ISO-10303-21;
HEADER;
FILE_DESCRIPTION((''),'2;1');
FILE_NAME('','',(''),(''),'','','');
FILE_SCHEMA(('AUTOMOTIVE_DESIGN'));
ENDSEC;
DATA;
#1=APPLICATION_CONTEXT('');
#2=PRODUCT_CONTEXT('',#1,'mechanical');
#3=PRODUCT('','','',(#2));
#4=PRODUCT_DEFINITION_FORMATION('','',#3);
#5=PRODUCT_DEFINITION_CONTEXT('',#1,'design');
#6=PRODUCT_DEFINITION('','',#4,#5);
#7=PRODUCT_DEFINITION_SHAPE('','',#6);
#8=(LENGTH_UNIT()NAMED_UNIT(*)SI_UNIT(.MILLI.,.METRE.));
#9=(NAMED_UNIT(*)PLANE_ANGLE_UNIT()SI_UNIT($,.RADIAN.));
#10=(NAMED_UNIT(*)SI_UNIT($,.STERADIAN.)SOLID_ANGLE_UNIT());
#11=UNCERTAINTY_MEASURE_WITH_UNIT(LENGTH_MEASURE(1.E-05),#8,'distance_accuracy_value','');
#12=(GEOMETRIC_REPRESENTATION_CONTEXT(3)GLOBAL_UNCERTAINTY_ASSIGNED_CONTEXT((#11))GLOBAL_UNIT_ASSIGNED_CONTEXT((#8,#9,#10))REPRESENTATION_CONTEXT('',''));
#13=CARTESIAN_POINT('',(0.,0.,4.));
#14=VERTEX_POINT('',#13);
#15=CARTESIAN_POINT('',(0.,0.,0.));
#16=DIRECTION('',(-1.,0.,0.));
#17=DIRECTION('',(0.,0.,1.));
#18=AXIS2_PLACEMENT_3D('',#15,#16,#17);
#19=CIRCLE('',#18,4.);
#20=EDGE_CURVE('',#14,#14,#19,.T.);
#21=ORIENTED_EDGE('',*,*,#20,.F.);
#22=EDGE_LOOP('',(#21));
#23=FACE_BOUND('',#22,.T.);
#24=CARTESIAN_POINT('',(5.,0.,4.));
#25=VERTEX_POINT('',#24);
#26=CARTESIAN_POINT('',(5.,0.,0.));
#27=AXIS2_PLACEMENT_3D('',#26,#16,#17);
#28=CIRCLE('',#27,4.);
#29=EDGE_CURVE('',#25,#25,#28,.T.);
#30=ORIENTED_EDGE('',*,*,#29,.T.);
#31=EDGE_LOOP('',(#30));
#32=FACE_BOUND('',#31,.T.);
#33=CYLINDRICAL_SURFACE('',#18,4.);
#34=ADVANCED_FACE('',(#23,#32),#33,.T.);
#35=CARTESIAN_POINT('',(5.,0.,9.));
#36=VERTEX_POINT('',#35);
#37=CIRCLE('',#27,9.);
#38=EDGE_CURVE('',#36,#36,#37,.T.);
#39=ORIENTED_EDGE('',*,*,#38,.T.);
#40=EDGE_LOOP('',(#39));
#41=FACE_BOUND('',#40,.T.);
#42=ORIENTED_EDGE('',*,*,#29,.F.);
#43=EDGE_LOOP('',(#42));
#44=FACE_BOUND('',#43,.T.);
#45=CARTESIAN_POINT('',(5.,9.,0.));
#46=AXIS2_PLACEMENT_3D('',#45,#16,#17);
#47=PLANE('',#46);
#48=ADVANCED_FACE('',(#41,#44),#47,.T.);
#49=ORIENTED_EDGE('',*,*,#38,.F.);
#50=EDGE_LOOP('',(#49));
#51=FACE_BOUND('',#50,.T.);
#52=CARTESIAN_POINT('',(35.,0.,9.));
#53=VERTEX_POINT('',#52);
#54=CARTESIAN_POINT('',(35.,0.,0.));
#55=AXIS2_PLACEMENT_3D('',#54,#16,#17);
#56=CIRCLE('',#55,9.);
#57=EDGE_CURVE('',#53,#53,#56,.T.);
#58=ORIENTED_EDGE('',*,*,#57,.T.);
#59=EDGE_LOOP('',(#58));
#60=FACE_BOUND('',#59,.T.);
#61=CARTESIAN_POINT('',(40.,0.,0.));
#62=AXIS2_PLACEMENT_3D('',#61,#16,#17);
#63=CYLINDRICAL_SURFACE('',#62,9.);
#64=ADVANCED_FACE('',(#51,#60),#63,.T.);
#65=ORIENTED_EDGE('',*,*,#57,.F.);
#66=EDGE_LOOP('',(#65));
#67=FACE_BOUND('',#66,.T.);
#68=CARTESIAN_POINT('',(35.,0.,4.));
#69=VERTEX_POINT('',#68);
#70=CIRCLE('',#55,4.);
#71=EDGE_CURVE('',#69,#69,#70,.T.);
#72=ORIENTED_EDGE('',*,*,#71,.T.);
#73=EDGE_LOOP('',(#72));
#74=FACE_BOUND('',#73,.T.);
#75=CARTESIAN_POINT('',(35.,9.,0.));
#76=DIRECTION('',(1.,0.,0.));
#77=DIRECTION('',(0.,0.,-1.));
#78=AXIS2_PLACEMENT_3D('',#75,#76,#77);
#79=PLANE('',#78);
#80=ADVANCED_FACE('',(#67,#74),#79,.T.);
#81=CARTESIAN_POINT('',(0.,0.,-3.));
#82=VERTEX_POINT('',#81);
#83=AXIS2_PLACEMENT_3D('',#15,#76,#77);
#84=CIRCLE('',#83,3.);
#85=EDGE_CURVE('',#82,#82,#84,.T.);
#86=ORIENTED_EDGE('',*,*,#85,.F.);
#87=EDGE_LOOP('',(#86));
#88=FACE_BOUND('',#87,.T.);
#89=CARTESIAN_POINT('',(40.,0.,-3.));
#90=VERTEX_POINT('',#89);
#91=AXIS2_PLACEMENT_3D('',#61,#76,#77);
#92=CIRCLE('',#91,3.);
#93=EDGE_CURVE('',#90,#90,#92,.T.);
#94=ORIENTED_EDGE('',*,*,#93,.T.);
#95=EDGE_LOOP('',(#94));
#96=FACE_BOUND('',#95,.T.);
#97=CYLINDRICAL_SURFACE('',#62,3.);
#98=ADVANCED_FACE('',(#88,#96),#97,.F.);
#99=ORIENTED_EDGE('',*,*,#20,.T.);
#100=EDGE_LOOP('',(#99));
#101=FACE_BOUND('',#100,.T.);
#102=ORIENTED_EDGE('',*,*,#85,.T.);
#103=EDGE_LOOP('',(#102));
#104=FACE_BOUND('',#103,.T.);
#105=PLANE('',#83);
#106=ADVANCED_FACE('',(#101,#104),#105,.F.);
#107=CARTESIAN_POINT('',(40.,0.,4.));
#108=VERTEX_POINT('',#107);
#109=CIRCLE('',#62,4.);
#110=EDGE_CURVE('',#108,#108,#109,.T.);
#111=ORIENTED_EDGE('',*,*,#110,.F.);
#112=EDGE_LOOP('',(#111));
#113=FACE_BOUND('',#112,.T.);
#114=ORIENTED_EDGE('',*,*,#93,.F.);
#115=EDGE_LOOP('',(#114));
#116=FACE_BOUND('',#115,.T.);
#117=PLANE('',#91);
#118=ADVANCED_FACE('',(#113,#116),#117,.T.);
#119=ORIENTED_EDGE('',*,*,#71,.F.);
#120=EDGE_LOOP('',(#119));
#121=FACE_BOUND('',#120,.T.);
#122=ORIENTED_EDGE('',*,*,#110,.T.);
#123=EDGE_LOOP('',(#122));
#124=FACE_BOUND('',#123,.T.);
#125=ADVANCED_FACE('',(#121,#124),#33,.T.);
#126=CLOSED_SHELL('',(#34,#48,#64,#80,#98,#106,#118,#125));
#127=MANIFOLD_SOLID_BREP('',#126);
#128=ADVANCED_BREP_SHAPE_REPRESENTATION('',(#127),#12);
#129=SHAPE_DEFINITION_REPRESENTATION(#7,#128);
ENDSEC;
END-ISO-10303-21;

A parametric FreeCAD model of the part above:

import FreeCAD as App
import Part
import Sketcher
Q = App.Units.Quantity

doc = App.newDocument("Part")
params = doc.addObject("Spreadsheet::Sheet", "Params")
for row, (alias, value) in enumerate([
    ("sketch1_diameter", "18 mm"),
    ("sketch1_diameter2", "6 mm"),
    ("pad1_length", "40 mm"),
    ("sketch2_width", "5 mm"),
    ("groove_angle", "360 deg"),
], start=1):
    params.set(f"A{row}", alias)
    params.set(f"B{row}", "=" + value)
    params.setAlias(f"B{row}", alias)

body = doc.addObject("PartDesign::Body", "Body")

# Sketch on YZ plane
sketch1 = doc.addObject("Sketcher::SketchObject", "Sketch")
body.addObject(sketch1)
sketch1.AttachmentSupport = (doc.YZ_Plane, [""])
sketch1.MapMode = "FlatFace"
sketch1.addGeometry([
    Part.Circle(App.Vector(0, 0, 0), App.Vector(0, 0, 1), 9),
    Part.Circle(App.Vector(0, 0, 0), App.Vector(0, 0, 1), 3),
], False)
sketch1.addConstraint([
    Sketcher.Constraint("Coincident", 0, 3, -1, 1),
    Sketcher.Constraint("Coincident", 1, 3, -1, 1),
    Sketcher.Constraint("Diameter", 0, Q("18 mm")),
    Sketcher.Constraint("Diameter", 1, Q("6 mm")),
])
sketch1.setExpression("Constraints[2]", "Params.sketch1_diameter")
sketch1.setExpression("Constraints[3]", "Params.sketch1_diameter2")
pad1 = doc.addObject("PartDesign::Pad", "Pad")
body.addObject(pad1)
pad1.Profile = sketch1
pad1.setExpression("Length", "Params.pad1_length")

# Sketch on XY plane
sketch2 = doc.addObject("Sketcher::SketchObject", "Sketch001")
body.addObject(sketch2)
sketch2.AttachmentSupport = (doc.XY_Plane, [""])
sketch2.MapMode = "FlatFace"
sketch2.addGeometry([
    Part.LineSegment(App.Vector(0, 9, 0), App.Vector(0, 4, 0)),  # 0
    Part.LineSegment(App.Vector(0, 4, 0), App.Vector(5, 4, 0)),  # 1
    Part.LineSegment(App.Vector(5, 4, 0), App.Vector(5, 9, 0)),  # 2
    Part.LineSegment(App.Vector(5, 9, 0), App.Vector(0, 9, 0)),  # 3
    Part.LineSegment(App.Vector(35, 9, 0), App.Vector(35, 4, 0)),  # 4
    Part.LineSegment(App.Vector(35, 4, 0), App.Vector(40, 4, 0)),  # 5
    Part.LineSegment(App.Vector(40, 4, 0), App.Vector(40, 9, 0)),  # 6
    Part.LineSegment(App.Vector(40, 9, 0), App.Vector(35, 9, 0)),  # 7
], False)
sketch2.addConstraint([
    Sketcher.Constraint("Coincident", 0, 2, 1, 1),
    Sketcher.Constraint("Coincident", 1, 2, 2, 1),
    Sketcher.Constraint("Coincident", 2, 2, 3, 1),
    Sketcher.Constraint("Coincident", 3, 2, 0, 1),
    Sketcher.Constraint("Coincident", 4, 2, 5, 1),
    Sketcher.Constraint("Coincident", 5, 2, 6, 1),
    Sketcher.Constraint("Coincident", 6, 2, 7, 1),
    Sketcher.Constraint("Coincident", 7, 2, 4, 1),
    Sketcher.Constraint("Vertical", 0),
    Sketcher.Constraint("Horizontal", 1),
    Sketcher.Constraint("Vertical", 2),
    Sketcher.Constraint("Horizontal", 3),
    Sketcher.Constraint("Vertical", 4),
    Sketcher.Constraint("Horizontal", 5),
    Sketcher.Constraint("Vertical", 6),
    Sketcher.Constraint("Horizontal", 7),
    Sketcher.Constraint("PointOnObject", 0, 2, -2),
    Sketcher.Constraint("Horizontal", 1, 2, 4, 2),
    Sketcher.Constraint("Horizontal", 3, 2, 6, 2),
    Sketcher.Constraint("Equal", 3, 5),
    Sketcher.Constraint("Equal", 7, 0),
    Sketcher.Constraint("DistanceX", 1, 1, 1, 2, Q("5 mm")),
    Sketcher.Constraint("DistanceY", -1, 1, 0, 2, Q("4 mm")),
    Sketcher.Constraint("DistanceX", -1, 1, 4, 2, Q("35 mm")),
])
sketch2.setExpression("Constraints[21]", "Params.sketch2_width")
groove = doc.addObject("PartDesign::Groove", "Groove")
body.addObject(groove)
groove.Profile = sketch2
groove.ReferenceAxis = (sketch2, ["H_Axis"])
groove.setExpression("Angle", "Params.groove_angle")

doc.recompute()
